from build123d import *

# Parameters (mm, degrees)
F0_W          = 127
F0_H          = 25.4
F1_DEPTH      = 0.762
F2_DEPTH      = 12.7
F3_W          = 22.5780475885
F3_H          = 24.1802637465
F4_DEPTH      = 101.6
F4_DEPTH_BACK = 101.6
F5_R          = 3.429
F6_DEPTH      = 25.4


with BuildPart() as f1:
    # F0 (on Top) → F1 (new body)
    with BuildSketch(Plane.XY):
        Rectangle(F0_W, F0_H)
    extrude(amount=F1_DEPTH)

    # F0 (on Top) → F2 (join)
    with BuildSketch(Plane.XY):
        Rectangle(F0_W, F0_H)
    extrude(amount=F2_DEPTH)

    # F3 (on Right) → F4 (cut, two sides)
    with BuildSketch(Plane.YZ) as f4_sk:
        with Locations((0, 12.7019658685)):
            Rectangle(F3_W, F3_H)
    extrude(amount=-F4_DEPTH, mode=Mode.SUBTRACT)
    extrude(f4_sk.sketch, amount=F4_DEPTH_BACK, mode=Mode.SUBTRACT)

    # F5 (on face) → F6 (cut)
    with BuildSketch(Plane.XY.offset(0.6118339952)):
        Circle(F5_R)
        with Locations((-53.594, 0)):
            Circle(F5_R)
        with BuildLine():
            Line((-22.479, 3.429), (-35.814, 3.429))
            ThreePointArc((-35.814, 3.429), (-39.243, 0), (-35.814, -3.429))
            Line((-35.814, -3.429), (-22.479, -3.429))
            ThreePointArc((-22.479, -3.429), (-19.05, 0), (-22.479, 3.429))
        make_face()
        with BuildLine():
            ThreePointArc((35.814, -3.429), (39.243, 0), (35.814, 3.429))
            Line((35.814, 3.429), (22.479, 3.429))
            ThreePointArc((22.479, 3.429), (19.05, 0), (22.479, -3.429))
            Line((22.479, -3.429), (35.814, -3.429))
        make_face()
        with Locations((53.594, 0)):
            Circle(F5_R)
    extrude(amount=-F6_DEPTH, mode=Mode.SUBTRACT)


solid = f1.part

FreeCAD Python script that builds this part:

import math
import FreeCAD as App
import Part
import Sketcher
from FreeCAD import Vector
Q = App.Units.Quantity


def add_polygon(sketch, points):
    """Adds a closed chain of lines whose ends are joined by coincident constraints."""
    first, n = sketch.GeometryCount, len(points)
    for a, b in zip(points, points[1:] + points[:1]):
        sketch.addGeometry(Part.LineSegment(App.Vector(*a, 0), App.Vector(*b, 0)), False)
    for i in range(n):
        sketch.addConstraint(Sketcher.Constraint("Coincident", first + i, 2, first + (i + 1) % n, 1))

doc = App.newDocument("Part")
body = doc.addObject("PartDesign::Body", "Body")

sketch1 = body.newObject("Sketcher::SketchObject", "Sketch")
sketch1.AttachmentSupport = (doc.getObject("XY_Plane"), [""])
sketch1.MapMode = "FlatFace"
add_polygon(sketch1, [(-63.5, 12.7), (-63.5, -12.7), (63.5, -12.7), (63.5, 12.7)])
sketch1.addConstraint([
    Sketcher.Constraint("Vertical", 0),
    Sketcher.Constraint("Horizontal", 1),
    Sketcher.Constraint("Vertical", 2),
    Sketcher.Constraint("Horizontal", 3),
    Sketcher.Constraint("Symmetric", 0, 2, 2, 2, -1, 1),
    Sketcher.Constraint("DistanceX", 1, 1, 1, 2, Q("5 in")),
    Sketcher.Constraint("DistanceY", 0, 2, 0, 1, Q("1 in")),
])
pad1 = body.newObject("PartDesign::Pad", "Pad")
pad1.Profile = sketch1
pad1.Length = Q("0.03 in")

sketch2 = body.newObject("Sketcher::SketchObject", "Sketch001")
sketch2.AttachmentSupport = (doc.getObject("XY_Plane"), [""])
sketch2.MapMode = "FlatFace"
add_polygon(sketch2, [(-63.5, 12.7), (-63.5, -12.7), (63.5, -12.7), (63.5, 12.7)])
sketch2.addConstraint([
    Sketcher.Constraint("Vertical", 0),
    Sketcher.Constraint("Horizontal", 1),
    Sketcher.Constraint("Vertical", 2),
    Sketcher.Constraint("Horizontal", 3),
    Sketcher.Constraint("Symmetric", 0, 2, 2, 2, -1, 1),
    Sketcher.Constraint("DistanceX", 1, 1, 1, 2, Q("5 in")),
    Sketcher.Constraint("DistanceY", 0, 2, 0, 1, Q("1 in")),
])
pad2 = body.newObject("PartDesign::Pad", "Pad001")
pad2.Profile = sketch2
pad2.Length = Q("0.5 in")

sketch3 = body.newObject("Sketcher::SketchObject", "Sketch002")
sketch3.AttachmentSupport = (doc.getObject("YZ_Plane"), [""])
sketch3.MapMode = "FlatFace"
add_polygon(sketch3, [(-11.289024, 24.792098), (-11.289024, 0.611834), (11.289024, 0.611834), (11.289024, 24.792098)])
sketch3.addConstraint([
    Sketcher.Constraint("Vertical", 0),
    Sketcher.Constraint("Horizontal", 1),
    Sketcher.Constraint("Vertical", 2),
    Sketcher.Constraint("Horizontal", 3),
    Sketcher.Constraint("DistanceX", 1, 1, 1, 2, 22.578048),
    Sketcher.Constraint("DistanceY", 0, 2, 0, 1, 24.180264),
    Sketcher.Constraint("DistanceX", 0, 2, -1, 1, 11.289024),
    Sketcher.Constraint("DistanceY", -1, 1, 0, 2, 0.611834),
])
pocket1 = body.newObject("PartDesign::Pocket", "Pocket")
pocket1.Profile = sketch3
pocket1.Type = "ThroughAll"
pocket1.Midplane = True

sketch4 = body.newObject("Sketcher::SketchObject", "Sketch003")
sketch4.AttachmentSupport = (doc.getObject("XY_Plane"), [""])
sketch4.MapMode = "FlatFace"
sketch4.AttachmentOffset = App.Placement(Vector(0, 0, 0.611834), App.Rotation())
sketch4.addGeometry([
    Part.Circle(Vector(0, 0, 0), Vector(0, 0, 1), 3.429),
    Part.Circle(Vector(-53.594, 0, 0), Vector(0, 0, 1), 3.429),
    Part.LineSegment(Vector(-22.479, 3.429, 0), Vector(-35.814, 3.429, 0)),
    Part.ArcOfCircle(Part.Circle(Vector(-35.814, 0, 0), Vector(0, 0, 1), 3.429), math.radians(90), math.radians(270)),
    Part.LineSegment(Vector(-35.814, -3.429, 0), Vector(-22.479, -3.429, 0)),
    Part.ArcOfCircle(Part.Circle(Vector(-22.479, 0, 0), Vector(0, 0, 1), 3.429), math.radians(-90), math.radians(90)),
    Part.ArcOfCircle(Part.Circle(Vector(35.814, 0, 0), Vector(0, 0, 1), 3.429), math.radians(-90), math.radians(90)),
    Part.LineSegment(Vector(35.814, 3.429, 0), Vector(22.479, 3.429, 0)),
    Part.ArcOfCircle(Part.Circle(Vector(22.479, 0, 0), Vector(0, 0, 1), 3.429), math.radians(90), math.radians(270)),
    Part.LineSegment(Vector(22.479, -3.429, 0), Vector(35.814, -3.429, 0)),
    Part.Circle(Vector(53.594, 0, 0), Vector(0, 0, 1), 3.429),
], False)
sketch4.addConstraint([
    Sketcher.Constraint("Tangent", 2, 2, 3, 1),
    Sketcher.Constraint("Tangent", 3, 2, 4, 1),
    Sketcher.Constraint("Tangent", 4, 2, 5, 1),
    Sketcher.Constraint("Tangent", 5, 2, 2, 1),
    Sketcher.Constraint("Tangent", 6, 2, 7, 1),
    Sketcher.Constraint("Tangent", 7, 2, 8, 1),
    Sketcher.Constraint("Tangent", 8, 2, 9, 1),
    Sketcher.Constraint("Tangent", 9, 2, 6, 1),
    Sketcher.Constraint("Horizontal", 2),
    Sketcher.Constraint("Horizontal", 4),
    Sketcher.Constraint("Horizontal", 7),
    Sketcher.Constraint("Horizontal", 9),
    Sketcher.Constraint("Coincident", 0, 3, -1, 1),
    Sketcher.Constraint("Equal", 0, 1),
    Sketcher.Constraint("Equal", 1, 3),
    Sketcher.Constraint("Equal", 5, 6),
    Sketcher.Constraint("Equal", 8, 10),
    Sketcher.Constraint("Symmetric", 3, 3, 6, 3, -1, 1),
    Sketcher.Constraint("Symmetric", 1, 3, 10, 3, -1, 1),
    Sketcher.Constraint("Symmetric", 5, 3, 8, 3, -2),
    Sketcher.Constraint("PointOnObject", 1, 3, -1),
    Sketcher.Constraint("Diameter", 0, Q("0.27 in")),
    Sketcher.Constraint("DistanceX", 1, 3, 3, 3, Q("0.7 in")),
    Sketcher.Constraint("DistanceX", 2, 2, 2, 1, Q("0.525 in")),
    Sketcher.Constraint("DistanceX", 1, 3, -1, 1, Q("2.11 in")),
])
pocket2 = body.newObject("PartDesign::Pocket", "Pocket001")
pocket2.Profile = sketch4
pocket2.Length = Q("1 in")

doc.recompute()
